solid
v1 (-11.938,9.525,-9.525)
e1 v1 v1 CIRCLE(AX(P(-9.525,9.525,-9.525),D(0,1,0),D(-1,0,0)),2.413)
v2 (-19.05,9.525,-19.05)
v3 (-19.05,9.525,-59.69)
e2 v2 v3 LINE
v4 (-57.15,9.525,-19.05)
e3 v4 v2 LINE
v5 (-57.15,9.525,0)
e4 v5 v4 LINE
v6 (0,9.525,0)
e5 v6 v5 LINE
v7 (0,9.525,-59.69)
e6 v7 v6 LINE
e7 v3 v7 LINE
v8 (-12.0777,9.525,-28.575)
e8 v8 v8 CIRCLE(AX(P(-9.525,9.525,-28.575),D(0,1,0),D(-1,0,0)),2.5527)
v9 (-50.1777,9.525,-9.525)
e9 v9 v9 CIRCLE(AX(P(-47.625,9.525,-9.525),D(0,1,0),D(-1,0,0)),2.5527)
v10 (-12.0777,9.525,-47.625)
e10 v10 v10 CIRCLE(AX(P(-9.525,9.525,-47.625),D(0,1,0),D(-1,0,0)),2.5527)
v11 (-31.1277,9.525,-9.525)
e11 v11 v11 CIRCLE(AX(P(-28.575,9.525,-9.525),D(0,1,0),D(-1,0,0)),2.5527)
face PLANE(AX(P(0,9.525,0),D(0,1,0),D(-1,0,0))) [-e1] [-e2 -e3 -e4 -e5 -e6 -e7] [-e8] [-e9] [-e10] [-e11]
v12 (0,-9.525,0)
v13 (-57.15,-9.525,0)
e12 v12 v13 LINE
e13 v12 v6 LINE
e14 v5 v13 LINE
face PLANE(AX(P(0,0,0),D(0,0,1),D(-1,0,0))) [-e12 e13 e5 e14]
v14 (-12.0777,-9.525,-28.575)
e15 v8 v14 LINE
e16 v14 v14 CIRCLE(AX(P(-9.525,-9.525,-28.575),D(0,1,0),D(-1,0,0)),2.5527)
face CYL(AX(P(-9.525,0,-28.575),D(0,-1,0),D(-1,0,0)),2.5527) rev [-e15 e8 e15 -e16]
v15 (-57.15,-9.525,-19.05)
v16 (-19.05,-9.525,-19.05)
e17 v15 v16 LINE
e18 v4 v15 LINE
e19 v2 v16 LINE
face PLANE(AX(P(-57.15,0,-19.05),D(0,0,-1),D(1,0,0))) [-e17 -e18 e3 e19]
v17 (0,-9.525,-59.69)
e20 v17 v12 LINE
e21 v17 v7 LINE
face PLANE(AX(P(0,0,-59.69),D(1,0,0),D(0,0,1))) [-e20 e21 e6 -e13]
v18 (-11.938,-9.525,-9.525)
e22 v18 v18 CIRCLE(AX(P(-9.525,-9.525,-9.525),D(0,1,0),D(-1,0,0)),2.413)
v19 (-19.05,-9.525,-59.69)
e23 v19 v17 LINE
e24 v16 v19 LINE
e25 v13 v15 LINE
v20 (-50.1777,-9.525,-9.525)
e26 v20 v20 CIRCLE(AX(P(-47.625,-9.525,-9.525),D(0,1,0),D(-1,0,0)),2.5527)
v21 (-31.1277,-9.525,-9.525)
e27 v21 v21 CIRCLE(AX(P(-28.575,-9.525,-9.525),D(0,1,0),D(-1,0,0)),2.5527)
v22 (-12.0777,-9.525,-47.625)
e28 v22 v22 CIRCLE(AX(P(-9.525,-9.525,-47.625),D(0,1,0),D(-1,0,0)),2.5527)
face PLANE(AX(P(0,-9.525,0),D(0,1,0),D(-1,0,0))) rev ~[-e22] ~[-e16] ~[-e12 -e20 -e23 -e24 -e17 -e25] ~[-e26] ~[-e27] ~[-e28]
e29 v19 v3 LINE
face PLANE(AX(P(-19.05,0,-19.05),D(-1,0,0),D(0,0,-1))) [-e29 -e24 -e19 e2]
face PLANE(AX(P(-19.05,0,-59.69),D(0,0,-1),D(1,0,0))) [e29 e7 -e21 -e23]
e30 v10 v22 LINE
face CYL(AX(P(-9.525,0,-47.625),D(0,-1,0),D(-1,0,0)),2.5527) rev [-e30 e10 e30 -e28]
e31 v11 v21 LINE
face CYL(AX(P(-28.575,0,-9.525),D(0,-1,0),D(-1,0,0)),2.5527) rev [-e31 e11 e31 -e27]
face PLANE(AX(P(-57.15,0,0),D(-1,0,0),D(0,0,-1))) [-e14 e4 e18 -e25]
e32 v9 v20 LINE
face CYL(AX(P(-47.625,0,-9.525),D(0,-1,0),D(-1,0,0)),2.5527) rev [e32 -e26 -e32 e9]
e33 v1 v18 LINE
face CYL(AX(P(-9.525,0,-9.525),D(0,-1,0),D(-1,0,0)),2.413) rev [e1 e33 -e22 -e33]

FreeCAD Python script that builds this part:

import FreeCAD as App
import Part
import Sketcher

V = App.Vector
Q = App.Units.Quantity

doc = App.newDocument("Part")
params = doc.addObject("Spreadsheet::Sheet", "Params")
for row, (alias, value) in enumerate([
    ("sketch1_diameter", "0.19 in"),
    ("sketch1_diameter2", "0.201 in"),
    ("sketch1_width", "2.25 in"),
    ("sketch1_width2", "0.75 in"),
    ("sketch1_height", "2.35 in"),
    ("pad1_length", "0.75 in"),
], start=1):
    params.set(f"A{row}", alias)
    params.set(f"B{row}", "=" + value)
    params.setAlias(f"B{row}", alias)

body = doc.addObject("PartDesign::Body", "Body")

sketch1 = body.newObject("Sketcher::SketchObject", "Sketch")
sketch1.AttachmentSupport = (doc.getObject("XZ_Plane"), [""])
sketch1.MapMode = "FlatFace"
sketch1.addGeometry([
    Part.LineSegment(V(-57.1, 0, 0), V(0, 0, 0)),
    Part.LineSegment(V(0, 0, 0), V(0, -59.7, 0)),
    Part.LineSegment(V(0, -59.7, 0), V(-19.1, -59.7, 0)),
    Part.LineSegment(V(-19.1, -59.7, 0), V(-19.1, -19.1, 0)),
    Part.LineSegment(V(-19.1, -19.1, 0), V(-57.1, -19.1, 0)),
    Part.LineSegment(V(-57.1, -19.1, 0), V(-57.1, 0, 0)),
    Part.Circle(V(-9.5, -47.6, 0), V(0, 0, 1), 2.6),
    Part.Circle(V(-9.5, -28.6, 0), V(0, 0, 1), 2.6),
    Part.Circle(V(-9.5, -9.5, 0), V(0, 0, 1), 2.4),
    Part.Circle(V(-28.6, -9.5, 0), V(0, 0, 1), 2.6),
    Part.Circle(V(-47.6, -9.5, 0), V(0, 0, 1), 2.6),
], False)
sketch1.addConstraint([
    Sketcher.Constraint("Coincident", 0, 2, 1, 1),
    Sketcher.Constraint("Coincident", 1, 2, 2, 1),
    Sketcher.Constraint("Coincident", 2, 2, 3, 1),
    Sketcher.Constraint("Coincident", 3, 2, 4, 1),
    Sketcher.Constraint("Coincident", 4, 2, 5, 1),
    Sketcher.Constraint("Coincident", 5, 2, 0, 1),
    Sketcher.Constraint("Horizontal", 0),
    Sketcher.Constraint("Vertical", 1),
    Sketcher.Constraint("Horizontal", 2),
    Sketcher.Constraint("Vertical", 3),
    Sketcher.Constraint("Horizontal", 4),
    Sketcher.Constraint("Vertical", 5),
    Sketcher.Constraint("Coincident", 0, 2, -1, 1),
    Sketcher.Constraint("Equal", 6, 7),
    Sketcher.Constraint("Equal", 7, 9),
    Sketcher.Constraint("Equal", 9, 10),
    Sketcher.Constraint("Horizontal", 8, 3, 9, 3),
    Sketcher.Constraint("Horizontal", 9, 3, 10, 3),
    Sketcher.Constraint("Vertical", 6, 3, 7, 3),
    Sketcher.Constraint("Vertical", 7, 3, 8, 3),
    Sketcher.Constraint("Equal", 2, 5),
    Sketcher.Constraint("Diameter", 8, Q("0.19 in")),
    Sketcher.Constraint("Diameter", 6, Q("0.201 in")),
    Sketcher.Constraint("DistanceX", 0, 1, 0, 2, Q("2.25 in")),
    Sketcher.Constraint("DistanceX", 2, 2, 2, 1, Q("0.75 in")),
    Sketcher.Constraint("DistanceY", 1, 2, 1, 1, Q("2.35 in")),
    Sketcher.Constraint("DistanceY", 6, 3, 7, 3, Q("0.75 in")),
    Sketcher.Constraint("DistanceY", 7, 3, 8, 3, Q("0.75 in")),
    Sketcher.Constraint("DistanceX", 9, 3, 8, 3, Q("0.75 in")),
    Sketcher.Constraint("DistanceX", 10, 3, 9, 3, Q("0.75 in")),
    Sketcher.Constraint("DistanceY", 7, 3, -1, 1, Q("1.125 in")),
    Sketcher.Constraint("DistanceX", 9, 3, -1, 1, Q("1.125 in")),
])
sketch1.setExpression("Constraints[21]", "Params.sketch1_diameter")
sketch1.setExpression("Constraints[22]", "Params.sketch1_diameter2")
sketch1.setExpression("Constraints[23]", "Params.sketch1_width")
sketch1.setExpression("Constraints[24]", "Params.sketch1_width2")
sketch1.setExpression("Constraints[25]", "Params.sketch1_height")
pad1 = body.newObject("PartDesign::Pad", "Pad")
pad1.Profile = sketch1
pad1.setExpression("Length", "Params.pad1_length")
pad1.Midplane = True

doc.recompute()
